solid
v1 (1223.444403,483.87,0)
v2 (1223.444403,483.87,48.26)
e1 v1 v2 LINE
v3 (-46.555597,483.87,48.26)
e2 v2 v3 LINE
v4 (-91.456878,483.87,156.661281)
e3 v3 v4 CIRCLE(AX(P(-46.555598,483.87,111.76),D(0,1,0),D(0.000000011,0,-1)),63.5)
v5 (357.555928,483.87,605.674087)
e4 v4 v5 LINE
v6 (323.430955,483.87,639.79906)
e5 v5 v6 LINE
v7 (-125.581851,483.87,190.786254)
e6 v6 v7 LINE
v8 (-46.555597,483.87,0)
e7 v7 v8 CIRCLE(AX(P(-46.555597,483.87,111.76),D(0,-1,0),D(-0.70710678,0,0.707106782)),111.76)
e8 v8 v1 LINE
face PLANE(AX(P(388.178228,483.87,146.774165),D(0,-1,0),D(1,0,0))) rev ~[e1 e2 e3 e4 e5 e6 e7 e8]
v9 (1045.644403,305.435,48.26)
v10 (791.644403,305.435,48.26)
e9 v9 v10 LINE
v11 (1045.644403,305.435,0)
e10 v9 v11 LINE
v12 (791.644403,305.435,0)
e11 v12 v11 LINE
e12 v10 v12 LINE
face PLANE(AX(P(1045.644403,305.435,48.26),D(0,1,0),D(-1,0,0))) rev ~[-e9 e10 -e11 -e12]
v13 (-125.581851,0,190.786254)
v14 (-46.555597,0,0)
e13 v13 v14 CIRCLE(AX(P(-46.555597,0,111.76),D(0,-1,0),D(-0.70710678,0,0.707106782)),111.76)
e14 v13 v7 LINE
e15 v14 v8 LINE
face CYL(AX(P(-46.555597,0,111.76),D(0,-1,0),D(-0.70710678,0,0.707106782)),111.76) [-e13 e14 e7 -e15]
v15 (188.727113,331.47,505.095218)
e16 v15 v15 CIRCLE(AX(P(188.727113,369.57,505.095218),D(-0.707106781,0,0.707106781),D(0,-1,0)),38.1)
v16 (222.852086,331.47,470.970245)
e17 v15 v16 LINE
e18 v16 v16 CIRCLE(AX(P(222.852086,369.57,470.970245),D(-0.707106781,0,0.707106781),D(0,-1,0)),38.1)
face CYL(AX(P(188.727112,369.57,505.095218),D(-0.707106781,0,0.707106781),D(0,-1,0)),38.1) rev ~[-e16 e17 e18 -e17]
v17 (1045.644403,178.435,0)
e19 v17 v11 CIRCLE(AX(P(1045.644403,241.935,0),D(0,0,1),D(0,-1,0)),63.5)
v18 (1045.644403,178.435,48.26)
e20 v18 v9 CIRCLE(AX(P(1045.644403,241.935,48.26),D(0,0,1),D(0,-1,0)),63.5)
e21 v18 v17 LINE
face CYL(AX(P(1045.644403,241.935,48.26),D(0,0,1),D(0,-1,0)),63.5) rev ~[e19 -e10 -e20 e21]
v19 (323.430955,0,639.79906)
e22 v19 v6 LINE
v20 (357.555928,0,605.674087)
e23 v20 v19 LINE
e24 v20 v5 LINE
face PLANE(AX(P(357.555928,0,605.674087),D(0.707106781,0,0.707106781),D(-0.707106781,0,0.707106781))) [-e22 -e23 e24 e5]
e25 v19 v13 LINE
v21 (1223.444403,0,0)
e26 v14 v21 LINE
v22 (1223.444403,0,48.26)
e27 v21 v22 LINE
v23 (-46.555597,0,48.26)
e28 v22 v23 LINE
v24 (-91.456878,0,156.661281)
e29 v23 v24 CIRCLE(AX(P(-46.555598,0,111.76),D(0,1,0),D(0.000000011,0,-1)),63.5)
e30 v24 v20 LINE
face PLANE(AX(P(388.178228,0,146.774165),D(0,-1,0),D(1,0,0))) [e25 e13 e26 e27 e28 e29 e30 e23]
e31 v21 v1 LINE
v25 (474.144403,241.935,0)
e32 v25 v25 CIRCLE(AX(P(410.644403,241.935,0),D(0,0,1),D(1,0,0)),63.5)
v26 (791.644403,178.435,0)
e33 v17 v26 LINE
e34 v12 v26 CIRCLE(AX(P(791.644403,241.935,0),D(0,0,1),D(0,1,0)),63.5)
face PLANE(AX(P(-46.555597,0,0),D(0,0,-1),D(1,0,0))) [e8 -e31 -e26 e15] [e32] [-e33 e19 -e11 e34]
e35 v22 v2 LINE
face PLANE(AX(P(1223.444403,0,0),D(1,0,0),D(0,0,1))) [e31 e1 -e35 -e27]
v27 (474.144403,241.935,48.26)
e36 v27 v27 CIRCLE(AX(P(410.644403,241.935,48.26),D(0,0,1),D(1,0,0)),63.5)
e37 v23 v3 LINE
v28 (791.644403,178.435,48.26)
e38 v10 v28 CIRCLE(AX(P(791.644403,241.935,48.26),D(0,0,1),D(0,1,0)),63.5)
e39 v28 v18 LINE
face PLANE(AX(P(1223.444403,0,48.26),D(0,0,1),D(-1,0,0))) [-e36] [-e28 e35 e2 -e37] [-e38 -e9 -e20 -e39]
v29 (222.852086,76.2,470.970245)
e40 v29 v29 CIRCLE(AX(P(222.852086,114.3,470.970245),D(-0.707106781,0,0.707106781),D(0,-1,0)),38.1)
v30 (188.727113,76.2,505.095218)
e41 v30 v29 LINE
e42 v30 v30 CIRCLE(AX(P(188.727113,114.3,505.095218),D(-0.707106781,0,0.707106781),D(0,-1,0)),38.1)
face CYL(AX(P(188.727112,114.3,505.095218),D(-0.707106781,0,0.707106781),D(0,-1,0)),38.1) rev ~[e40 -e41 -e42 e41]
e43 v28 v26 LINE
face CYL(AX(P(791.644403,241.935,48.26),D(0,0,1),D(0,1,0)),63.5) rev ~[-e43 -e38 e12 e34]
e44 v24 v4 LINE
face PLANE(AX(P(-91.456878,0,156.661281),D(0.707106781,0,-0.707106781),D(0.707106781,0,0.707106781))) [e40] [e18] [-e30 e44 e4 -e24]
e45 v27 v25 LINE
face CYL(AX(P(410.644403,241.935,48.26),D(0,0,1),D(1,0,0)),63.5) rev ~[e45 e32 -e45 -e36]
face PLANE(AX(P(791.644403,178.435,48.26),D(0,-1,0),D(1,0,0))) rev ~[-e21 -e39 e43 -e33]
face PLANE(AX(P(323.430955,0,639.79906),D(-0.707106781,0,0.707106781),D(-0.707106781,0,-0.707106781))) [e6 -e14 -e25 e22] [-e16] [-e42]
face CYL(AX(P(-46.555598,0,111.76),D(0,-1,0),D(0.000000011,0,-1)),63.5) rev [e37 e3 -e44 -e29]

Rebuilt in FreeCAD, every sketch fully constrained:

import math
import FreeCAD as App
import Part
import Sketcher
Q = App.Units.Quantity

doc = App.newDocument("Part")
body = doc.addObject("PartDesign::Body", "Body")

# Sketch on XZ plane
sketch1 = body.newObject("Sketcher::SketchObject", "Sketch")
sketch1.AttachmentSupport = (doc.getObject("XZ_Plane"), [""])
sketch1.MapMode = "FlatFace"
sketch1.addGeometry([
    Part.LineSegment(App.Vector(323, 640, 0), App.Vector(-126, 191, 0)),  # 0
    Part.ArcOfCircle(Part.Circle(App.Vector(-47, 112, 0), App.Vector(0, 0, 1), 112), math.radians(135), math.radians(270)),  # 1
    Part.LineSegment(App.Vector(-47, 0, 0), App.Vector(1223, 0, 0)),  # 2
    Part.LineSegment(App.Vector(1223, 0, 0), App.Vector(1223, 48, 0)),  # 3
    Part.LineSegment(App.Vector(1223, 48, 0), App.Vector(-47, 48, 0)),  # 4
    Part.ArcOfCircle(Part.Circle(App.Vector(-47, 112, 0), App.Vector(0, 0, 1), 64), math.radians(135), math.radians(270)),  # 5
    Part.LineSegment(App.Vector(-91, 157, 0), App.Vector(358, 606, 0)),  # 6
    Part.LineSegment(App.Vector(358, 606, 0), App.Vector(323, 640, 0)),  # 7
], False)
sketch1.addConstraint([
    Sketcher.Constraint("Tangent", 0, 2, 1, 1),
    Sketcher.Constraint("Tangent", 1, 2, 2, 1),
    Sketcher.Constraint("Coincident", 2, 2, 3, 1),
    Sketcher.Constraint("Coincident", 3, 2, 4, 1),
    Sketcher.Constraint("Tangent", 4, 2, 5, 2),
    Sketcher.Constraint("Tangent", 5, 1, 6, 1),
    Sketcher.Constraint("Coincident", 6, 2, 7, 1),
    Sketcher.Constraint("Coincident", 7, 2, 0, 1),
    Sketcher.Constraint("Horizontal", 2),
    Sketcher.Constraint("Vertical", 3),
    Sketcher.Constraint("Horizontal", 4),
    Sketcher.Constraint("Coincident", 5, 3, 1, 3),
    Sketcher.Constraint("PointOnObject", 1, 2, -1),
    Sketcher.Constraint("Parallel", 0, 6),
    Sketcher.Constraint("Perpendicular", 6, 7),
    Sketcher.Constraint("Radius", 1, Q("4.4 in")),
    Sketcher.Constraint("Radius", 5, Q("2.5 in")),
    Sketcher.Constraint("DistanceX", 2, 1, 2, 2, Q("50 in")),
    Sketcher.Constraint("Distance", 0, Q("25 in")),
    Sketcher.Constraint("Angle", 0, Q("-135 deg")),
    Sketcher.Constraint("DistanceX", 0, 2, -1, 1, 125.581851),
])
pad1 = body.newObject("PartDesign::Pad", "Pad")
pad1.Profile = sketch1
pad1.Length = Q("19.05 in")
pad1.Reversed = True

# Sketch on XY plane
sketch2 = body.newObject("Sketcher::SketchObject", "Sketch001")
sketch2.AttachmentSupport = (doc.getObject("XY_Plane"), [""])
sketch2.MapMode = "FlatFace"
sketch2.AttachmentOffset = App.Placement(App.Vector(0, 0, 1.9 * 25.4), App.Rotation())
sketch2.addGeometry([
    Part.LineSegment(App.Vector(792, 178, 0), App.Vector(1046, 178, 0)),
    Part.ArcOfCircle(Part.Circle(App.Vector(1046, 242, 0), App.Vector(0, 0, 1), 64), math.radians(-90), math.radians(90)),
    Part.LineSegment(App.Vector(1046, 305, 0), App.Vector(792, 305, 0)),
    Part.ArcOfCircle(Part.Circle(App.Vector(792, 242, 0), App.Vector(0, 0, 1), 64), math.radians(90), math.radians(270)),
], False)
sketch2.addConstraint([
    Sketcher.Constraint("Tangent", 0, 2, 1, 1),
    Sketcher.Constraint("Tangent", 1, 2, 2, 1),
    Sketcher.Constraint("Tangent", 2, 2, 3, 1),
    Sketcher.Constraint("Tangent", 3, 2, 0, 1),
    Sketcher.Constraint("Horizontal", 0),
    Sketcher.Constraint("Horizontal", 2),
    Sketcher.Constraint("Radius", 1, Q("2.5 in")),
    Sketcher.Constraint("DistanceX", 0, 1, 0, 2, Q("10 in")),
    Sketcher.Constraint("DistanceY", -1, 1, 1, 3, Q("9.525 in")),
    Sketcher.Constraint("DistanceX", -1, 1, 1, 3, 1045.644403),
])
pocket1 = body.newObject("PartDesign::Pocket", "Pocket")
pocket1.Profile = sketch2
pocket1.Length = Q("3 in")

# Sketch on an angled plane
sketch3 = body.newObject("Sketcher::SketchObject", "Sketch002")
sketch3.Placement = App.Placement(App.Vector(-158.184053, 0, 158.184053), App.Rotation(App.Vector(0, -1, 0), App.Vector(0.707106781, 0, 0.707106781), App.Vector(-0.707106781, 0, 0.707106781), "ZXY"))
sketch3.addGeometry([
    Part.Circle(App.Vector(-370, 491, 0), App.Vector(0, 0, 1), 38),
    Part.Circle(App.Vector(-114, 491, 0), App.Vector(0, 0, 1), 38),
], False)
sketch3.addConstraint([
    Sketcher.Constraint("Equal", 0, 1),
    Sketcher.Constraint("Horizontal", 0, 3, 1, 3),
    Sketcher.Constraint("Diameter", 0, Q("3 in")),
    Sketcher.Constraint("DistanceX", 1, 3, -1, 1, Q("4.5 in")),
    Sketcher.Constraint("DistanceX", 0, 3, -1, 1, Q("14.55 in")),
    Sketcher.Constraint("DistanceY", -1, 1, 0, 3, 490.606475),
])
pocket2 = body.newObject("PartDesign::Pocket", "Pocket001")
pocket2.Profile = sketch3
pocket2.Length = Q("2 in")

# Sketch on XY plane
sketch4 = body.newObject("Sketcher::SketchObject", "Sketch003")
sketch4.AttachmentSupport = (doc.getObject("XY_Plane"), [""])
sketch4.MapMode = "FlatFace"
sketch4.AttachmentOffset = App.Placement(App.Vector(0, 0, 1.9 * 25.4), App.Rotation())
sketch4.addGeometry(Part.Circle(App.Vector(411, 242, 0), App.Vector(0, 0, 1), 64), False)
sketch4.addConstraint([
    Sketcher.Constraint("Diameter", 0, Q("5 in")),
    Sketcher.Constraint("DistanceY", -1, 1, 0, 3, Q("9.525 in")),
    Sketcher.Constraint("DistanceX", -1, 1, 0, 3, 410.644403),
])
pocket3 = body.newObject("PartDesign::Pocket", "Pocket002")
pocket3.Profile = sketch4
pocket3.Length = Q("2 in")

doc.recompute()
